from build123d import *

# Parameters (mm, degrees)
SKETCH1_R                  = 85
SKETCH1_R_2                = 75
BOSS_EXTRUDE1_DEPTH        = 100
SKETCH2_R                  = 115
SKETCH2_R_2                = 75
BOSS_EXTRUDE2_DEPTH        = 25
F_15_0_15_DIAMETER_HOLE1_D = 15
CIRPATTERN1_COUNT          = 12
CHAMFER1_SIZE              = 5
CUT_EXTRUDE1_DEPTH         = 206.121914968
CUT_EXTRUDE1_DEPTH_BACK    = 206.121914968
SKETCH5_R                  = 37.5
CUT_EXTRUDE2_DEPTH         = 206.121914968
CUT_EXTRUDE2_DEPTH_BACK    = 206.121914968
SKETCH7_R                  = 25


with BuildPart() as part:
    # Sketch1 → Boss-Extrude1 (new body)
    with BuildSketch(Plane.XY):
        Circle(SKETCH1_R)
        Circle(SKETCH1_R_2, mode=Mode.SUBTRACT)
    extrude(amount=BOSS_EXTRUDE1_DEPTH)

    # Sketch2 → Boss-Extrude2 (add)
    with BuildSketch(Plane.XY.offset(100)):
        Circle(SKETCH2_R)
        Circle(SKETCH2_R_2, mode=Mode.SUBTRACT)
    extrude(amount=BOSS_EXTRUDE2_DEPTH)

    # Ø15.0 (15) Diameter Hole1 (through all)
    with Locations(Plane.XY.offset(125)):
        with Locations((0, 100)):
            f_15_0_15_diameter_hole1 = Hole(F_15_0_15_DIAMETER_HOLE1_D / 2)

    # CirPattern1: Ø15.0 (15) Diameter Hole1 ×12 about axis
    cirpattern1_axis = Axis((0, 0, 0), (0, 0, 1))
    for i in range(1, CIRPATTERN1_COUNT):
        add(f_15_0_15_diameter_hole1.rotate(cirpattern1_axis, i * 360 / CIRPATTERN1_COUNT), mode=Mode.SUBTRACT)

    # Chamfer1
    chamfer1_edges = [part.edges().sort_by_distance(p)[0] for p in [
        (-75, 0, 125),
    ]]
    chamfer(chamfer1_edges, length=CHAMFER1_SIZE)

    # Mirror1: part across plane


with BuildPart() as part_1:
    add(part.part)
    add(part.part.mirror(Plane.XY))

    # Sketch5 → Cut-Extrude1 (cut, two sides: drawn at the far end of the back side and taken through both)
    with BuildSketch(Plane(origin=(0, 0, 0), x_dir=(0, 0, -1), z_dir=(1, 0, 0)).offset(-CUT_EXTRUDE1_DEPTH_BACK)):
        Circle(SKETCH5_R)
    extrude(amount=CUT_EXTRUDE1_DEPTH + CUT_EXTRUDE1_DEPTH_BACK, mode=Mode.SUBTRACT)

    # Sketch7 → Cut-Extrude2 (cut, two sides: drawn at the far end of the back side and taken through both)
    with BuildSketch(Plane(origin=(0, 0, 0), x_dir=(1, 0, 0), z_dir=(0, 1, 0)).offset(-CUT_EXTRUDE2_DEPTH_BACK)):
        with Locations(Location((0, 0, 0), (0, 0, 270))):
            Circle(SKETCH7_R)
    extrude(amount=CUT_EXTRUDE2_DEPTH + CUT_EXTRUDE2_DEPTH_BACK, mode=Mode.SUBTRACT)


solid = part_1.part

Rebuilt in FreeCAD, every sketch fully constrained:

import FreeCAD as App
import Part
import Sketcher
Q = App.Units.Quantity


def edges_at(feature, points):
    """Names of the edges that pass closest to the given points."""
    edges = feature.Shape.Edges
    near = lambda p: min(range(len(edges)), key=lambda i: edges[i].distToShape(Part.Vertex(*p))[0])
    return sorted({f"Edge{near(p) + 1}" for p in points})

doc = App.newDocument("Part")
params = doc.addObject("Spreadsheet::Sheet", "Params")
for row, (alias, value) in enumerate([
    ("sketch1_diameter", "170 mm"),
    ("sketch1_diameter2", "150 mm"),
    ("pad1_length", "100 mm"),
    ("sketch2_diameter", "230 mm"),
    ("sketch2_diameter2", "150 mm"),
    ("pad2_length", "25 mm"),
    ("sketch3_diameter", "15 mm"),
    ("hole_diameter", "15 mm"),
    ("chamfer_size", "5 mm"),
    ("sketch4_diameter", "75 mm"),
    ("sketch5_diameter", "50 mm"),
], start=1):
    params.set(f"A{row}", alias)
    params.set(f"B{row}", "=" + value)
    params.setAlias(f"B{row}", alias)

body = doc.addObject("PartDesign::Body", "Body")

# Sketch on XY plane
sketch1 = doc.addObject("Sketcher::SketchObject", "Sketch")
body.addObject(sketch1)
sketch1.AttachmentSupport = (doc.XY_Plane, [""])
sketch1.MapMode = "FlatFace"
sketch1.addGeometry([
    Part.Circle(App.Vector(0, 0, 0), App.Vector(0, 0, 1), 85),
    Part.Circle(App.Vector(0, 0, 0), App.Vector(0, 0, 1), 75),
], False)
sketch1.addConstraint([
    Sketcher.Constraint("Coincident", 0, 3, -1, 1),
    Sketcher.Constraint("Coincident", 1, 3, -1, 1),
    Sketcher.Constraint("Diameter", 0, Q("170 mm")),
    Sketcher.Constraint("Diameter", 1, Q("150 mm")),
])
sketch1.setExpression("Constraints[2]", "Params.sketch1_diameter")
sketch1.setExpression("Constraints[3]", "Params.sketch1_diameter2")
pad1 = doc.addObject("PartDesign::Pad", "Pad")
body.addObject(pad1)
pad1.Profile = sketch1
pad1.setExpression("Length", "Params.pad1_length")

# Sketch on XY plane
sketch2 = doc.addObject("Sketcher::SketchObject", "Sketch001")
body.addObject(sketch2)
sketch2.AttachmentSupport = (doc.XY_Plane, [""])
sketch2.MapMode = "FlatFace"
sketch2.AttachmentOffset = App.Placement(App.Vector(0, 0, 100), App.Rotation())
sketch2.addGeometry([
    Part.Circle(App.Vector(0, 0, 0), App.Vector(0, 0, 1), 115),
    Part.Circle(App.Vector(0, 0, 0), App.Vector(0, 0, 1), 75),
], False)
sketch2.addConstraint([
    Sketcher.Constraint("Coincident", 0, 3, -1, 1),
    Sketcher.Constraint("Coincident", 1, 3, -1, 1),
    Sketcher.Constraint("Diameter", 0, Q("230 mm")),
    Sketcher.Constraint("Diameter", 1, Q("150 mm")),
])
sketch2.setExpression("Constraints[2]", "Params.sketch2_diameter")
sketch2.setExpression("Constraints[3]", "Params.sketch2_diameter2")
pad2 = doc.addObject("PartDesign::Pad", "Pad001")
body.addObject(pad2)
pad2.Profile = sketch2
pad2.setExpression("Length", "Params.pad2_length")

# Sketch on XY plane
sketch3 = doc.addObject("Sketcher::SketchObject", "Sketch002")
body.addObject(sketch3)
sketch3.AttachmentSupport = (doc.XY_Plane, [""])
sketch3.MapMode = "FlatFace"
sketch3.AttachmentOffset = App.Placement(App.Vector(0, 0, 125), App.Rotation())
sketch3.addGeometry(Part.Circle(App.Vector(0, 100, 0), App.Vector(0, 0, 1), 7.5), False)
sketch3.addConstraint([
    Sketcher.Constraint("PointOnObject", 0, 3, -2),
    Sketcher.Constraint("Diameter", 0, Q("15 mm")),
    Sketcher.Constraint("DistanceY", -1, 1, 0, 3, Q("100 mm")),
])
sketch3.setExpression("Constraints[1]", "Params.sketch3_diameter")
doc.recompute()
hole = doc.addObject("PartDesign::Hole", "Hole")
body.addObject(hole)
hole.Profile = sketch3
hole.ThreadType = "None"
hole.setExpression("Diameter", "Params.hole_diameter")
hole.DepthType = "ThroughAll"
doc.recompute()

polarpattern = doc.addObject("PartDesign::PolarPattern", "PolarPattern")
body.addObject(polarpattern)
polarpattern.Originals = [hole]
polarpattern.Axis = (doc.Z_Axis, [""])
polarpattern.Angle = 360
polarpattern.Occurrences = 12
body.Tip = polarpattern
doc.recompute()

chamfer = doc.addObject("PartDesign::Chamfer", "Chamfer")
body.addObject(chamfer)
chamfer.Base = (polarpattern, edges_at(polarpattern, [(-75, 0, 125)]))
chamfer.setExpression("Size", "Params.chamfer_size")
body2 = doc.addObject("PartDesign::Body", "Body001")
doc.recompute()

body2.BaseFeature = body
doc.recompute()

mirroring = doc.addObject("Part::Mirroring", "Mirroring")
mirroring.Source = body
mirroring.Base = App.Vector(0, 0, 0)
mirroring.Normal = App.Vector(0, 0, 1)
body3 = doc.addObject("PartDesign::Body", "Body002")
body3.BaseFeature = mirroring
boolean = doc.addObject("PartDesign::Boolean", "Boolean")
body2.addObject(boolean)
boolean.Type = "Fuse"
boolean.addObjects([body3])
doc.recompute()

# Sketch on YZ plane
sketch4 = doc.addObject("Sketcher::SketchObject", "Sketch003")
body2.addObject(sketch4)
sketch4.AttachmentSupport = (doc.getObject("YZ_Plane001"), [""])
sketch4.MapMode = "FlatFace"
sketch4.addGeometry(Part.Circle(App.Vector(0, 0, 0), App.Vector(0, 0, 1), 37.5), False)
sketch4.addConstraint([
    Sketcher.Constraint("Coincident", 0, 3, -1, 1),
    Sketcher.Constraint("Diameter", 0, Q("75 mm")),
])
sketch4.setExpression("Constraints[1]", "Params.sketch4_diameter")
pocket1 = doc.addObject("PartDesign::Pocket", "Pocket")
body2.addObject(pocket1)
pocket1.Profile = sketch4
pocket1.Type = "ThroughAll"
pocket1.Midplane = True

# Sketch on XZ plane
sketch5 = doc.addObject("Sketcher::SketchObject", "Sketch004")
body2.addObject(sketch5)
sketch5.AttachmentSupport = (doc.getObject("XZ_Plane001"), [""])
sketch5.MapMode = "FlatFace"
sketch5.addGeometry(Part.Circle(App.Vector(0, 0, 0), App.Vector(0, 0, 1), 25), False)
sketch5.addConstraint([
    Sketcher.Constraint("Coincident", 0, 3, -1, 1),
    Sketcher.Constraint("Diameter", 0, Q("50 mm")),
])
sketch5.setExpression("Constraints[1]", "Params.sketch5_diameter")
pocket2 = doc.addObject("PartDesign::Pocket", "Pocket001")
body2.addObject(pocket2)
pocket2.Profile = sketch5
pocket2.Type = "ThroughAll"
pocket2.Midplane = True
mirroring.Visibility = False

doc.recompute()
